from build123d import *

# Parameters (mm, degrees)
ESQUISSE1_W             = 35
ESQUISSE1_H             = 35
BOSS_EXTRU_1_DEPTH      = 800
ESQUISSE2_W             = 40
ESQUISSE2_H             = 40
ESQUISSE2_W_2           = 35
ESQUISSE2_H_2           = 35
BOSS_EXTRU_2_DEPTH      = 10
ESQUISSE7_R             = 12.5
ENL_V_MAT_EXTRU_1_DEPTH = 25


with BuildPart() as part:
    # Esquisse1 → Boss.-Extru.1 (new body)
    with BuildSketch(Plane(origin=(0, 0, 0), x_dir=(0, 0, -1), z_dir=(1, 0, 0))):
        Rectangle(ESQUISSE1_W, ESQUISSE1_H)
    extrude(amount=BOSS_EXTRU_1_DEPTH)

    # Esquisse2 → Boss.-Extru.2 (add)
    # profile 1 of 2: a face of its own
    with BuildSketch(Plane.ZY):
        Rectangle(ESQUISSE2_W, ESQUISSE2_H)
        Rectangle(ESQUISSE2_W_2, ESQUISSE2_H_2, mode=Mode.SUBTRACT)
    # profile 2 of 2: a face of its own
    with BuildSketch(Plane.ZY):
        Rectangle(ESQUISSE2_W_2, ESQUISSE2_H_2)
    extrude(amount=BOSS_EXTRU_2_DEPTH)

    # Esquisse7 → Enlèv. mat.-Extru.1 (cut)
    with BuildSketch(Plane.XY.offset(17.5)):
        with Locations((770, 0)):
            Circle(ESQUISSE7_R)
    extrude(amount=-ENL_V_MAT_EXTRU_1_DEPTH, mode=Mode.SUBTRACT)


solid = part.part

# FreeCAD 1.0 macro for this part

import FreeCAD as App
import Part
import Sketcher

V = App.Vector
Q = App.Units.Quantity

doc = App.newDocument("Part")
body = doc.addObject("PartDesign::Body", "Body")

# Sketch on YZ plane
sketch1 = doc.addObject("Sketcher::SketchObject", "Sketch")
body.addObject(sketch1)
sketch1.AttachmentSupport = (doc.YZ_Plane, [""])
sketch1.MapMode = "FlatFace"
sketch1.addGeometry([
    Part.LineSegment(V(18, 18, 0), V(-18, 18, 0)),
    Part.LineSegment(V(-18, 18, 0), V(-18, -18, 0)),
    Part.LineSegment(V(-18, -18, 0), V(18, -18, 0)),
    Part.LineSegment(V(18, -18, 0), V(18, 18, 0)),
], False)
sketch1.addConstraint([
    Sketcher.Constraint("Coincident", 0, 2, 1, 1),
    Sketcher.Constraint("Coincident", 1, 2, 2, 1),
    Sketcher.Constraint("Coincident", 2, 2, 3, 1),
    Sketcher.Constraint("Coincident", 3, 2, 0, 1),
    Sketcher.Constraint("Horizontal", 0),
    Sketcher.Constraint("Vertical", 1),
    Sketcher.Constraint("Horizontal", 2),
    Sketcher.Constraint("Vertical", 3),
    Sketcher.Constraint("Symmetric", 0, 2, 2, 2, -1, 1),
    Sketcher.Constraint("Equal", 2, 1),
    Sketcher.Constraint("DistanceX", 0, 2, 0, 1, Q("35 mm")),
])
pad1 = doc.addObject("PartDesign::Pad", "Pad")
body.addObject(pad1)
pad1.Profile = sketch1
pad1.Length = 800

# Sketch on YZ plane
sketch2 = doc.addObject("Sketcher::SketchObject", "Sketch001")
body.addObject(sketch2)
sketch2.AttachmentSupport = (doc.YZ_Plane, [""])
sketch2.MapMode = "FlatFace"
sketch2.addGeometry([
    Part.LineSegment(V(20, -20, 0), V(-20, -20, 0)),
    Part.LineSegment(V(-20, -20, 0), V(-20, 20, 0)),
    Part.LineSegment(V(-20, 20, 0), V(20, 20, 0)),
    Part.LineSegment(V(20, 20, 0), V(20, -20, 0)),
], False)
sketch2.addConstraint([
    Sketcher.Constraint("Coincident", 0, 2, 1, 1),
    Sketcher.Constraint("Coincident", 1, 2, 2, 1),
    Sketcher.Constraint("Coincident", 2, 2, 3, 1),
    Sketcher.Constraint("Coincident", 3, 2, 0, 1),
    Sketcher.Constraint("Horizontal", 0),
    Sketcher.Constraint("Vertical", 1),
    Sketcher.Constraint("Horizontal", 2),
    Sketcher.Constraint("Vertical", 3),
    Sketcher.Constraint("Symmetric", 0, 2, 2, 2, -1, 1),
    Sketcher.Constraint("Equal", 2, 1),
    Sketcher.Constraint("DistanceX", 0, 2, 0, 1, Q("40 mm")),
])
pad2 = doc.addObject("PartDesign::Pad", "Pad001")
body.addObject(pad2)
pad2.Profile = sketch2
pad2.Length = 10
pad2.Reversed = True

# Sketch on XY plane
sketch3 = doc.addObject("Sketcher::SketchObject", "Sketch002")
body.addObject(sketch3)
sketch3.AttachmentSupport = (doc.XY_Plane, [""])
sketch3.MapMode = "FlatFace"
sketch3.AttachmentOffset = App.Placement(V(0, 0, 17.5), App.Rotation())
sketch3.addGeometry(Part.Circle(V(770, 0, 0), V(0, 0, 1), 12), False)
sketch3.addConstraint([
    Sketcher.Constraint("PointOnObject", 0, 3, -1),
    Sketcher.Constraint("Diameter", 0, Q("25 mm")),
    Sketcher.Constraint("DistanceX", -1, 1, 0, 3, Q("770 mm")),
])
pocket1 = doc.addObject("PartDesign::Pocket", "Pocket")
body.addObject(pocket1)
pocket1.Profile = sketch3
pocket1.Length = 25

doc.recompute()
